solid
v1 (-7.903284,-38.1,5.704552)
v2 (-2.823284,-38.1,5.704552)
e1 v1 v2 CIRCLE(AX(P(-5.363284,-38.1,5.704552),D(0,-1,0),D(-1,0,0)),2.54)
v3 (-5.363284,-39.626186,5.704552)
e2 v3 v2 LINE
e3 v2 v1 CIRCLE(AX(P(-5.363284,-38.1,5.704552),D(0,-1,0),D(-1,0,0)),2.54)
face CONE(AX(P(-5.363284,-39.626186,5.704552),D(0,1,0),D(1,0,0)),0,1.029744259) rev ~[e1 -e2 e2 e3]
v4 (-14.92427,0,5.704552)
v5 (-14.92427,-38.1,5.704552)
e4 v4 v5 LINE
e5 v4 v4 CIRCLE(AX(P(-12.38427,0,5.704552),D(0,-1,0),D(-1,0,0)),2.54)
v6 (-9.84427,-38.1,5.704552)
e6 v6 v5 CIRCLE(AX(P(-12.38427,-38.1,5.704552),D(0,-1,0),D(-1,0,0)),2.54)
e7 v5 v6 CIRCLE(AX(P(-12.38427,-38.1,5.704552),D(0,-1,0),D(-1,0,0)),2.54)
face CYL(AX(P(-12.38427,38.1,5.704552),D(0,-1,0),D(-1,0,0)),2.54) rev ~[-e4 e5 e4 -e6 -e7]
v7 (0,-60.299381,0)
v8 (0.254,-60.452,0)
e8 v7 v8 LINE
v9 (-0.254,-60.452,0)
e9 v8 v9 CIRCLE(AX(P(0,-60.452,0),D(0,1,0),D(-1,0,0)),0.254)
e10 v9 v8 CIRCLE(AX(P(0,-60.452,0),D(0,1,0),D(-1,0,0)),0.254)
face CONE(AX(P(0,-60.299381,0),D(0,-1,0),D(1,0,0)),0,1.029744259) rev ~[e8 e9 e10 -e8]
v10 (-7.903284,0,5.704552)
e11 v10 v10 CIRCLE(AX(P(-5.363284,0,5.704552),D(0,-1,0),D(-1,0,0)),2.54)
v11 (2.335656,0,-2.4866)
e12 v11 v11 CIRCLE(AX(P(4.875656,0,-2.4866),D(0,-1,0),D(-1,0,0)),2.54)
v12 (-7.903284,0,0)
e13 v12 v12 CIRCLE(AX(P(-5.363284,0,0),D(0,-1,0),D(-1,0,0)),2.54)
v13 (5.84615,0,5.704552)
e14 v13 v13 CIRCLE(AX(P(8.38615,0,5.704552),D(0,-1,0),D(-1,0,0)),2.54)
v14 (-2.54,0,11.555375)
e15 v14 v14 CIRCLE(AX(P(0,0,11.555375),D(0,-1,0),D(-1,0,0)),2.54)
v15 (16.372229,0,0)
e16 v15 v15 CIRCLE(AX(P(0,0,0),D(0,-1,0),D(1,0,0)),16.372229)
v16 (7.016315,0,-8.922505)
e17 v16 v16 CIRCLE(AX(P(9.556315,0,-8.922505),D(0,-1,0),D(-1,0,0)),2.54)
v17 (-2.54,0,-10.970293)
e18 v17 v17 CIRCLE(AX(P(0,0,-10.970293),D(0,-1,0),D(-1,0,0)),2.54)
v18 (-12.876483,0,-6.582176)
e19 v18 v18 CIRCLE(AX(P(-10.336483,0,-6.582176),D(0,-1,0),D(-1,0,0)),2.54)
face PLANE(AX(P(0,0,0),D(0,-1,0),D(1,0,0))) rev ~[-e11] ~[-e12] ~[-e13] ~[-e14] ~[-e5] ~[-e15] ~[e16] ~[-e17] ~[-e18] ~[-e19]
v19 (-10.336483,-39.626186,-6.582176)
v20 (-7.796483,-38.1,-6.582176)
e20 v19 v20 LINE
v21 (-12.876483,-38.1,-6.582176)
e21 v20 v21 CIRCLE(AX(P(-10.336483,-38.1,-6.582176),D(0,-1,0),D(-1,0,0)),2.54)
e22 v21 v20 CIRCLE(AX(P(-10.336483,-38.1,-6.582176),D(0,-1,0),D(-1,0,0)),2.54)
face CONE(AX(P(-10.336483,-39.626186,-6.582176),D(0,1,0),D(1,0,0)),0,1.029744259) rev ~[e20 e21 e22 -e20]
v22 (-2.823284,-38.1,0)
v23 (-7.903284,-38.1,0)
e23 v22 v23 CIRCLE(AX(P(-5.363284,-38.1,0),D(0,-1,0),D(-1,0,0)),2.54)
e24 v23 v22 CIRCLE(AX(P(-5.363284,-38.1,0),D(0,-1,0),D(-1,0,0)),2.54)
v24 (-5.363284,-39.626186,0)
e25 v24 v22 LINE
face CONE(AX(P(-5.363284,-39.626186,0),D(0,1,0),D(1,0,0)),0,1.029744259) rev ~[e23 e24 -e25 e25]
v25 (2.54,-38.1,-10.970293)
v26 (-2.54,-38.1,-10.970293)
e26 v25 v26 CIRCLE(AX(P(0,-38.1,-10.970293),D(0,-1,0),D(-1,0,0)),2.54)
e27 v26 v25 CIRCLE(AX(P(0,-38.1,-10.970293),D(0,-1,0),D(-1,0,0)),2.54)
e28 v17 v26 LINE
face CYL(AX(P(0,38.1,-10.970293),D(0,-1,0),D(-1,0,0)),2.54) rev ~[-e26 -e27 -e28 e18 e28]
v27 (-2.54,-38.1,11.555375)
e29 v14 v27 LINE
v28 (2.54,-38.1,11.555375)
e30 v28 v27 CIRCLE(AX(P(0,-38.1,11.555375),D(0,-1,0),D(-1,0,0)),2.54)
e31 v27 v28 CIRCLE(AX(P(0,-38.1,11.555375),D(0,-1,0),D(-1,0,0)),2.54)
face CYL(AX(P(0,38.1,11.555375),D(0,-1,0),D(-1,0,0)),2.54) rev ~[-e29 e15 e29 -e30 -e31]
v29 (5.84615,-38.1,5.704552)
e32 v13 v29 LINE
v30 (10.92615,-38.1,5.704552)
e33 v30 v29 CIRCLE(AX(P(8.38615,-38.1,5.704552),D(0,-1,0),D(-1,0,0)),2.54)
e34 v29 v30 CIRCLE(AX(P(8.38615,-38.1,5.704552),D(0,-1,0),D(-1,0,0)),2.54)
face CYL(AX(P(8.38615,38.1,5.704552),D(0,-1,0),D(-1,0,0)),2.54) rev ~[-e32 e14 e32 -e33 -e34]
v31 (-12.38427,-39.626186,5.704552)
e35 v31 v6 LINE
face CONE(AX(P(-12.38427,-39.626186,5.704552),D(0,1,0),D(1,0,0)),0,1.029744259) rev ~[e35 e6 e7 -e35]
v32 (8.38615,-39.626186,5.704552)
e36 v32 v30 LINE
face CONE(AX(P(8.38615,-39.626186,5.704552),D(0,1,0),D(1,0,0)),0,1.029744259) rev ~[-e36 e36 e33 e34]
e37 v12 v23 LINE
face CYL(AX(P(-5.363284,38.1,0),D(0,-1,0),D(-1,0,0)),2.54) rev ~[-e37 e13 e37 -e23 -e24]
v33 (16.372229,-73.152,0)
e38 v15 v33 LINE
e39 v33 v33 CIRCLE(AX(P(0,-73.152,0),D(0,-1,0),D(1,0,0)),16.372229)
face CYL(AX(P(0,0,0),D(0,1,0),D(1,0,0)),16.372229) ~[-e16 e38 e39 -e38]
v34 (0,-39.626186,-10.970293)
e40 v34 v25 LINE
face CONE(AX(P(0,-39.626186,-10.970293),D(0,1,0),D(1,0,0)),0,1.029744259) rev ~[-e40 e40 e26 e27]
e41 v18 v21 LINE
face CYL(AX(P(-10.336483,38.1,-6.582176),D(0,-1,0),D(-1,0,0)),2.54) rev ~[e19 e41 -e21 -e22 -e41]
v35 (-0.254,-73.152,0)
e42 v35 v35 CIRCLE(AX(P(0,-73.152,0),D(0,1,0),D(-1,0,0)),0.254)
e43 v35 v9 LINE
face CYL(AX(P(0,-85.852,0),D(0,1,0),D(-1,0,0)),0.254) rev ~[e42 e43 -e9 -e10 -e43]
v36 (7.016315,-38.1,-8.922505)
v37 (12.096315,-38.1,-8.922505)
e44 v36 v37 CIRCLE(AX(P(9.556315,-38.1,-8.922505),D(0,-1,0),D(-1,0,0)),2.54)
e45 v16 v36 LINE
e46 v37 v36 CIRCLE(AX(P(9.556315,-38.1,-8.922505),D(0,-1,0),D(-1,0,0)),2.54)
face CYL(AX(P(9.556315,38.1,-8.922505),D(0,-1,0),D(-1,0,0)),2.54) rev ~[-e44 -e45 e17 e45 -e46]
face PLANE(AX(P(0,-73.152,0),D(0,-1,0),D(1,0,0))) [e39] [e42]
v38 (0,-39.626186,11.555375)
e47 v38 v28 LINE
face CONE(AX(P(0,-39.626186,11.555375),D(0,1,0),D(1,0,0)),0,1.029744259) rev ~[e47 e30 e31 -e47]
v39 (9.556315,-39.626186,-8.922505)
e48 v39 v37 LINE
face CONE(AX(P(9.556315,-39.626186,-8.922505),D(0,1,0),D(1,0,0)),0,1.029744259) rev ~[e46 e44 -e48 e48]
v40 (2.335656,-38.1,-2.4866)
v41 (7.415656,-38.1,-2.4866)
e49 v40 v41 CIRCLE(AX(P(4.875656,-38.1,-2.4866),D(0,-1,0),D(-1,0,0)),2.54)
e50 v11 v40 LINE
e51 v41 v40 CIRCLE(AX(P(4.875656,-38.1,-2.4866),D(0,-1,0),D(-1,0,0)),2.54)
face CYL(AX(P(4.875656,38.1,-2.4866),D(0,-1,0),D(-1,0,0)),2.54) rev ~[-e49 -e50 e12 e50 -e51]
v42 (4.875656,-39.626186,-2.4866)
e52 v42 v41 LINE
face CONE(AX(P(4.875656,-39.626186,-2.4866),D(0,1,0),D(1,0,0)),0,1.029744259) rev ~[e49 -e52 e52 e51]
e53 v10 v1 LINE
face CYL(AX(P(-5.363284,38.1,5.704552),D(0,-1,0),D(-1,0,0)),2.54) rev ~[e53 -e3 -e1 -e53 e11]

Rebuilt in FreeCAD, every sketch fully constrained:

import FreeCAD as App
import Part
import Sketcher

V = App.Vector
Q = App.Units.Quantity

doc = App.newDocument("Part")
body = doc.addObject("PartDesign::Body", "Body")

# Sketch on XZ plane
sketch1 = body.newObject("Sketcher::SketchObject", "Sketch")
sketch1.AttachmentSupport = (doc.getObject("XZ_Plane"), [""])
sketch1.MapMode = "FlatFace"
sketch1.addGeometry(Part.Circle(V(0, 0, 0), V(0, 0, 1), 16), False)
sketch1.addConstraint([
    Sketcher.Constraint("Coincident", 0, 3, -1, 1),
    Sketcher.Constraint("Diameter", 0, 32.744457),
])
pad1 = body.newObject("PartDesign::Pad", "Pad")
pad1.Profile = sketch1
pad1.Length = Q("2.88 in")

# Sketch on XZ plane
sketch2 = body.newObject("Sketcher::SketchObject", "Sketch001")
sketch2.AttachmentSupport = (doc.getObject("XZ_Plane"), [""])
sketch2.MapMode = "FlatFace"
sketch2.AttachmentOffset = App.Placement(V(0, 0, 2.88 * 25.4), App.Rotation())
sketch2.addGeometry(Part.Circle(V(0, 0, 0), V(0, 0, 1), 0.25), False)
sketch2.addConstraint([
    Sketcher.Constraint("Coincident", 0, 3, -1, 1),
    Sketcher.Constraint("Diameter", 0, Q("0.02 in")),
])
doc.recompute()
hole = body.newObject("PartDesign::Hole", "Hole")
hole.Profile = sketch2
hole.ThreadType = "None"
hole.Diameter = Q("0.02 in")
hole.DepthType = "Dimension"
hole.Depth = Q("0.5 in")
hole.DrillPoint = "Angled"
hole.DrillPointAngle = 118

# Sketch on XZ plane
sketch3 = body.newObject("Sketcher::SketchObject", "Sketch002")
sketch3.AttachmentSupport = (doc.getObject("XZ_Plane"), [""])
sketch3.MapMode = "FlatFace"
sketch3.addGeometry([
    Part.Circle(V(-12.4, 5.7, 0), V(0, 0, 1), 2.5),  # 0
    Part.Circle(V(-5.4, 5.7, 0), V(0, 0, 1), 2.5),  # 1
    Part.Circle(V(0, 11.6, 0), V(0, 0, 1), 2.5),  # 2
    Part.Circle(V(8.4, 5.7, 0), V(0, 0, 1), 2.5),  # 3
    Part.Circle(V(-5.4, 0, 0), V(0, 0, 1), 2.5),  # 4
    Part.Circle(V(4.9, -2.5, 0), V(0, 0, 1), 2.5),  # 5
    Part.Circle(V(9.6, -8.9, 0), V(0, 0, 1), 2.5),  # 6
    Part.Circle(V(0, -11, 0), V(0, 0, 1), 2.5),  # 7
    Part.Circle(V(-10.3, -6.6, 0), V(0, 0, 1), 2.5),  # 8
], False)
sketch3.addConstraint([
    Sketcher.Constraint("Equal", 0, 1),
    Sketcher.Constraint("Equal", 1, 2),
    Sketcher.Constraint("Equal", 2, 3),
    Sketcher.Constraint("Equal", 3, 4),
    Sketcher.Constraint("Equal", 4, 5),
    Sketcher.Constraint("Equal", 5, 6),
    Sketcher.Constraint("Equal", 6, 7),
    Sketcher.Constraint("Equal", 7, 8),
    Sketcher.Constraint("PointOnObject", 2, 3, -2),
    Sketcher.Constraint("PointOnObject", 4, 3, -1),
    Sketcher.Constraint("PointOnObject", 7, 3, -2),
    Sketcher.Constraint("Horizontal", 0, 3, 1, 3),
    Sketcher.Constraint("Horizontal", 1, 3, 3, 3),
    Sketcher.Constraint("Vertical", 1, 3, 4, 3),
    Sketcher.Constraint("Diameter", 0, Q("0.2 in")),
    Sketcher.Constraint("DistanceY", 5, 3, -1, 1, 2.4866),
    Sketcher.Constraint("DistanceX", 4, 3, 6, 3, 14.919599),
    Sketcher.Constraint("DistanceX", 8, 3, 4, 3, 4.973199),
    Sketcher.Constraint("DistanceX", 0, 3, -1, 1, 12.38427),
    Sketcher.Constraint("DistanceY", -1, 1, 0, 3, 5.704552),
    Sketcher.Constraint("DistanceX", -1, 1, 3, 3, 8.38615),
    Sketcher.Constraint("DistanceX", 4, 3, 5, 3, 10.23894),
    Sketcher.Constraint("DistanceY", 6, 3, 2, 3, 20.47788),
    Sketcher.Constraint("DistanceX", 1, 3, -1, 1, 5.363284),
    Sketcher.Constraint("DistanceY", -1, 1, 2, 3, 11.555375),
    Sketcher.Constraint("DistanceY", 7, 3, -1, 1, 10.970293),
    Sketcher.Constraint("DistanceY", 8, 3, -1, 1, 6.582176),
])
doc.recompute()
hole2 = body.newObject("PartDesign::Hole", "Hole001")
hole2.Profile = sketch3
hole2.ThreadType = "None"
hole2.Diameter = Q("0.2 in")
hole2.DepthType = "Dimension"
hole2.Depth = Q("1.5 in")
hole2.DrillPoint = "Angled"
hole2.DrillPointAngle = 118
hole2.Reversed = True

doc.recompute()
